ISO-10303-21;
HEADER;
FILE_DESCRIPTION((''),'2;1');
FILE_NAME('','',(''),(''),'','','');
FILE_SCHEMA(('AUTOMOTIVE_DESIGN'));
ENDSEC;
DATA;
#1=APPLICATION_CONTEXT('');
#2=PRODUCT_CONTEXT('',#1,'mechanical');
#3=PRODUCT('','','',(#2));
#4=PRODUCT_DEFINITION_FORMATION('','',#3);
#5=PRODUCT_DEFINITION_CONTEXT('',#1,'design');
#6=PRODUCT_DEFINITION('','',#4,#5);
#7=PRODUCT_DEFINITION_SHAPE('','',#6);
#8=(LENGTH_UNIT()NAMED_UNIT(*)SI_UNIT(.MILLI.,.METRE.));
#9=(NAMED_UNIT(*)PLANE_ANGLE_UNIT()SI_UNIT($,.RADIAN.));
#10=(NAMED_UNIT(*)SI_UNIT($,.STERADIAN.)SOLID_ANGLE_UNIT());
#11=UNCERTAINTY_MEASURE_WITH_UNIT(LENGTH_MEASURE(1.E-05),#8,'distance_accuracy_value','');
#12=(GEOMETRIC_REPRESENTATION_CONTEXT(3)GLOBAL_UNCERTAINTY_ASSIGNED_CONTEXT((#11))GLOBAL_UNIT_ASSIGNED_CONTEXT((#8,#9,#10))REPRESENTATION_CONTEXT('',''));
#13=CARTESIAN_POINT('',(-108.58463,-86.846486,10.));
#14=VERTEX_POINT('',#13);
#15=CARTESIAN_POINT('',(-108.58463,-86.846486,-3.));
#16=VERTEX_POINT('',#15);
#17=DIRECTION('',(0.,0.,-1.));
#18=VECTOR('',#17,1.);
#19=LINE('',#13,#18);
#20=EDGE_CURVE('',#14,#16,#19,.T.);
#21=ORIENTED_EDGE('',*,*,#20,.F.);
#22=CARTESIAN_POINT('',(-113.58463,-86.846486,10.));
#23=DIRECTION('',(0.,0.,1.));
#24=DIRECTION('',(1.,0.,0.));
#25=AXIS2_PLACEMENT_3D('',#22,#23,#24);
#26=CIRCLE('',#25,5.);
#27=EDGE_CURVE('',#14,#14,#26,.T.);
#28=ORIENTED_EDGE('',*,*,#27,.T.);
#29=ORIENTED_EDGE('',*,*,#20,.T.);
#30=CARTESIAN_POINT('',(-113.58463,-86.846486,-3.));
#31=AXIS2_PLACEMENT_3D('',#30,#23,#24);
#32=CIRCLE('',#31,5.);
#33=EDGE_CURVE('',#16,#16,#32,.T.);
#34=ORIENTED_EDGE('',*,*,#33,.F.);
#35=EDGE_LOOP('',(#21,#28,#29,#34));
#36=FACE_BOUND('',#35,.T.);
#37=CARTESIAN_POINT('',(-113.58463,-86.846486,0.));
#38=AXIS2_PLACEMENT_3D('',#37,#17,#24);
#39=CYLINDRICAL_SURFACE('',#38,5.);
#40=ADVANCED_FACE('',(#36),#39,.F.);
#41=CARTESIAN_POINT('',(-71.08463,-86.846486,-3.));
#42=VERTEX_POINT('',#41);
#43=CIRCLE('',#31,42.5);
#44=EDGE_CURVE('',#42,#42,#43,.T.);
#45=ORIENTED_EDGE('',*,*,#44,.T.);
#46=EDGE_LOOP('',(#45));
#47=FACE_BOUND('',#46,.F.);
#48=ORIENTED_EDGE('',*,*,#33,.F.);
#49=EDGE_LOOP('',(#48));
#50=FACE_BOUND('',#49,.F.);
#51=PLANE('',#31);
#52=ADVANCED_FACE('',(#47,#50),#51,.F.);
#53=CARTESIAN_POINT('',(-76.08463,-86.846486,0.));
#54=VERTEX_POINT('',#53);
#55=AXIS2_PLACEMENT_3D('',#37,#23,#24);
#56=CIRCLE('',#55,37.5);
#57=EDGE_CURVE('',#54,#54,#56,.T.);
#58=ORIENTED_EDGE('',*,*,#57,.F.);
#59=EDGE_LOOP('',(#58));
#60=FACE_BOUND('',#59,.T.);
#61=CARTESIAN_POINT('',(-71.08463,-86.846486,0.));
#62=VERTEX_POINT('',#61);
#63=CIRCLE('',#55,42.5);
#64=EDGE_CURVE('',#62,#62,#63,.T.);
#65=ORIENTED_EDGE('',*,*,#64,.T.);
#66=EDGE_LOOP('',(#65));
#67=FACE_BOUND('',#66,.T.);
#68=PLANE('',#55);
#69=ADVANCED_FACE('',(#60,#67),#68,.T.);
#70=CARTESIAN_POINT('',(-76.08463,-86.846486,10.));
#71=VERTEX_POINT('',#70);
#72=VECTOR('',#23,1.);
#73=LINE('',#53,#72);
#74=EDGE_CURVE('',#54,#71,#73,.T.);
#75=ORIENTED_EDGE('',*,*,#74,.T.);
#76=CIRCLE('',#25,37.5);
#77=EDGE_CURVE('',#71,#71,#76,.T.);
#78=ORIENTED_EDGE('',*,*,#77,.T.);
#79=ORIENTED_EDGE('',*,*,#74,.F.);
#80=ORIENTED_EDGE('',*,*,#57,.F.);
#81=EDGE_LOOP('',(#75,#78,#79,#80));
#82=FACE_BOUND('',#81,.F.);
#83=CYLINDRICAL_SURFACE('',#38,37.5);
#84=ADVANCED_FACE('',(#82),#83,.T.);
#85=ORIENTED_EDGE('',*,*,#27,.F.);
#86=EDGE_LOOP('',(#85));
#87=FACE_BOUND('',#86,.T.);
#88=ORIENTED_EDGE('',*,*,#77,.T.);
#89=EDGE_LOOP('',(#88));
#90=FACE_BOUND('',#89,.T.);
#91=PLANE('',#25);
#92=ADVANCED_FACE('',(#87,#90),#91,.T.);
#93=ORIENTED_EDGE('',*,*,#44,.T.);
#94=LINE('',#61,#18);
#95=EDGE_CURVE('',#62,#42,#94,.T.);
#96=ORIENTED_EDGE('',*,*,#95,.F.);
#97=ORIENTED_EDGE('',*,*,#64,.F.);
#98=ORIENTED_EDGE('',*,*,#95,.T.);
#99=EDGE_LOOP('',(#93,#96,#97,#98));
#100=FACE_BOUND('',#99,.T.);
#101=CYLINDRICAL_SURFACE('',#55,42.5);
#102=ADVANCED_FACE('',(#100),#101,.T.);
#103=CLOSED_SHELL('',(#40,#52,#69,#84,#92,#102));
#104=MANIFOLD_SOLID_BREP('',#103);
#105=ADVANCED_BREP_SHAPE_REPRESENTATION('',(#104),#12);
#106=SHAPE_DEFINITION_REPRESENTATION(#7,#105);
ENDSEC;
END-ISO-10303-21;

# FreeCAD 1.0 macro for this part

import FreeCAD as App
import Part
import Sketcher
from FreeCAD import Vector
Q = App.Units.Quantity

doc = App.newDocument("Part")
params = doc.addObject("Spreadsheet::Sheet", "Params")
for row, (alias, value) in enumerate([
    ("sketch1_diameter", "85 mm"),
    ("sketch1_diameter2", "10 mm"),
    ("pad1_length", "3 mm"),
    ("sketch2_diameter", "75 mm"),
    ("sketch2_diameter2", "10 mm"),
    ("pad2_length", "10 mm"),
], start=1):
    params.set(f"A{row}", alias)
    params.set(f"B{row}", "=" + value)
    params.setAlias(f"B{row}", alias)

body = doc.addObject("PartDesign::Body", "Body")

# Sketch on XY plane
sketch1 = doc.addObject("Sketcher::SketchObject", "Sketch")
body.addObject(sketch1)
sketch1.AttachmentSupport = (doc.XY_Plane, [""])
sketch1.MapMode = "FlatFace"
sketch1.addGeometry([
    Part.Circle(Vector(-114, -87, 0), Vector(0, 0, 1), 42),
    Part.Circle(Vector(-114, -87, 0), Vector(0, 0, 1), 5),
], False)
sketch1.addConstraint([
    Sketcher.Constraint("Coincident", 1, 3, 0, 3),
    Sketcher.Constraint("Diameter", 0, Q("85 mm")),
    Sketcher.Constraint("Diameter", 1, Q("10 mm")),
    Sketcher.Constraint("DistanceX", 0, 3, -1, 1, Q("113.58463 mm")),
    Sketcher.Constraint("DistanceY", 0, 3, -1, 1, Q("86.846486 mm")),
])
sketch1.setExpression("Constraints[1]", "Params.sketch1_diameter")
sketch1.setExpression("Constraints[2]", "Params.sketch1_diameter2")
pad1 = doc.addObject("PartDesign::Pad", "Pad")
body.addObject(pad1)
pad1.Profile = sketch1
pad1.setExpression("Length", "Params.pad1_length")
pad1.Reversed = True

# Sketch on XY plane
sketch2 = doc.addObject("Sketcher::SketchObject", "Sketch001")
body.addObject(sketch2)
sketch2.AttachmentSupport = (doc.XY_Plane, [""])
sketch2.MapMode = "FlatFace"
sketch2.addGeometry([
    Part.Circle(Vector(-114, -87, 0), Vector(0, 0, 1), 38),
    Part.Circle(Vector(-114, -87, 0), Vector(0, 0, 1), 5),
], False)
sketch2.addConstraint([
    Sketcher.Constraint("Coincident", 1, 3, 0, 3),
    Sketcher.Constraint("Diameter", 0, Q("75 mm")),
    Sketcher.Constraint("Diameter", 1, Q("10 mm")),
    Sketcher.Constraint("DistanceX", 0, 3, -1, 1, Q("113.58463 mm")),
    Sketcher.Constraint("DistanceY", 0, 3, -1, 1, Q("86.846486 mm")),
])
sketch2.setExpression("Constraints[1]", "Params.sketch2_diameter")
sketch2.setExpression("Constraints[2]", "Params.sketch2_diameter2")
pad2 = doc.addObject("PartDesign::Pad", "Pad001")
body.addObject(pad2)
pad2.Profile = sketch2
pad2.setExpression("Length", "Params.pad2_length")

doc.recompute()
